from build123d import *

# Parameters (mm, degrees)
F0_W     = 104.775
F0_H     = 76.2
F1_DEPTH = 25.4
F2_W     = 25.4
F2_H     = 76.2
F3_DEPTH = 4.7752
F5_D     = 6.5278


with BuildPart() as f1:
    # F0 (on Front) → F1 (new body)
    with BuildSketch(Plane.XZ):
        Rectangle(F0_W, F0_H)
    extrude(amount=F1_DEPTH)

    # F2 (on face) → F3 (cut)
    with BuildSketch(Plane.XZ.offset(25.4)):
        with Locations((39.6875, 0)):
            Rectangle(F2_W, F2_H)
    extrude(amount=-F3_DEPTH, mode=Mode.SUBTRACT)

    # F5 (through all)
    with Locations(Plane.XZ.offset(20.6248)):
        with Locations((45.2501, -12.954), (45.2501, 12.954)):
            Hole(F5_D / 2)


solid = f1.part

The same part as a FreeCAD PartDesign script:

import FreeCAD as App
import Part
import Sketcher
from FreeCAD import Vector
Q = App.Units.Quantity

doc = App.newDocument("Part")
body = doc.addObject("PartDesign::Body", "Body")

sketch1 = body.newObject("Sketcher::SketchObject", "Sketch")
sketch1.AttachmentSupport = (doc.getObject("XZ_Plane"), [""])
sketch1.MapMode = "FlatFace"
sketch1.addGeometry([
    Part.LineSegment(Vector(-52, 38, 0), Vector(-52, -38, 0)),
    Part.LineSegment(Vector(-52, -38, 0), Vector(52, -38, 0)),
    Part.LineSegment(Vector(52, -38, 0), Vector(52, 38, 0)),
    Part.LineSegment(Vector(52, 38, 0), Vector(-52, 38, 0)),
], False)
sketch1.addConstraint([
    Sketcher.Constraint("Coincident", 0, 2, 1, 1),
    Sketcher.Constraint("Coincident", 1, 2, 2, 1),
    Sketcher.Constraint("Coincident", 2, 2, 3, 1),
    Sketcher.Constraint("Coincident", 3, 2, 0, 1),
    Sketcher.Constraint("Vertical", 0),
    Sketcher.Constraint("Horizontal", 1),
    Sketcher.Constraint("Vertical", 2),
    Sketcher.Constraint("Horizontal", 3),
    Sketcher.Constraint("Symmetric", 0, 2, 2, 2, -1, 1),
    Sketcher.Constraint("DistanceY", 0, 2, 0, 1, Q("3 in")),
    Sketcher.Constraint("DistanceX", 1, 1, 1, 2, Q("4.125 in")),
])
pad1 = body.newObject("PartDesign::Pad", "Pad")
pad1.Profile = sketch1
pad1.Length = Q("1 in")

sketch2 = body.newObject("Sketcher::SketchObject", "Sketch001")
sketch2.AttachmentSupport = (doc.getObject("XZ_Plane"), [""])
sketch2.MapMode = "FlatFace"
sketch2.AttachmentOffset = App.Placement(Vector(0, 0, 1 * 25.4), App.Rotation())
sketch2.addGeometry([
    Part.LineSegment(Vector(27, 38, 0), Vector(27, -38, 0)),
    Part.LineSegment(Vector(27, -38, 0), Vector(52, -38, 0)),
    Part.LineSegment(Vector(52, -38, 0), Vector(52, 38, 0)),
    Part.LineSegment(Vector(52, 38, 0), Vector(27, 38, 0)),
], False)
sketch2.addConstraint([
    Sketcher.Constraint("Coincident", 0, 2, 1, 1),
    Sketcher.Constraint("Coincident", 1, 2, 2, 1),
    Sketcher.Constraint("Coincident", 2, 2, 3, 1),
    Sketcher.Constraint("Coincident", 3, 2, 0, 1),
    Sketcher.Constraint("Vertical", 0),
    Sketcher.Constraint("Horizontal", 1),
    Sketcher.Constraint("Vertical", 2),
    Sketcher.Constraint("Horizontal", 3),
    Sketcher.Constraint("DistanceX", 1, 1, 1, 2, Q("1 in")),
    Sketcher.Constraint("DistanceY", 0, 2, 0, 1, Q("3 in")),
    Sketcher.Constraint("DistanceY", 0, 2, -1, 1, Q("1.5 in")),
    Sketcher.Constraint("DistanceX", -1, 1, 0, 2, Q("1.0625 in")),
])
pocket1 = body.newObject("PartDesign::Pocket", "Pocket")
pocket1.Profile = sketch2
pocket1.Length = Q("0.188 in")

sketch3 = body.newObject("Sketcher::SketchObject", "Sketch002")
sketch3.AttachmentSupport = (doc.getObject("XZ_Plane"), [""])
sketch3.MapMode = "FlatFace"
sketch3.AttachmentOffset = App.Placement(Vector(0, 0, 0.812 * 25.4), App.Rotation())
sketch3.addGeometry([
    Part.Circle(Vector(45.3, -13, 0), Vector(0, 0, 1), 3.3),
    Part.Circle(Vector(45.3, 13, 0), Vector(0, 0, 1), 3.3),
], False)
sketch3.addConstraint([
    Sketcher.Constraint("Equal", 0, 1),
    Sketcher.Constraint("Symmetric", 0, 3, 1, 3, -1),
    Sketcher.Constraint("Diameter", 0, Q("0.257 in")),
    Sketcher.Constraint("DistanceY", 0, 3, -1, 1, Q("0.51 in")),
    Sketcher.Constraint("DistanceX", -1, 1, 0, 3, Q("1.7815 in")),
])
doc.recompute()
hole = body.newObject("PartDesign::Hole", "Hole")
hole.Profile = sketch3
hole.ThreadType = "None"
hole.Diameter = Q("0.257 in")
hole.DepthType = "ThroughAll"

doc.recompute()
